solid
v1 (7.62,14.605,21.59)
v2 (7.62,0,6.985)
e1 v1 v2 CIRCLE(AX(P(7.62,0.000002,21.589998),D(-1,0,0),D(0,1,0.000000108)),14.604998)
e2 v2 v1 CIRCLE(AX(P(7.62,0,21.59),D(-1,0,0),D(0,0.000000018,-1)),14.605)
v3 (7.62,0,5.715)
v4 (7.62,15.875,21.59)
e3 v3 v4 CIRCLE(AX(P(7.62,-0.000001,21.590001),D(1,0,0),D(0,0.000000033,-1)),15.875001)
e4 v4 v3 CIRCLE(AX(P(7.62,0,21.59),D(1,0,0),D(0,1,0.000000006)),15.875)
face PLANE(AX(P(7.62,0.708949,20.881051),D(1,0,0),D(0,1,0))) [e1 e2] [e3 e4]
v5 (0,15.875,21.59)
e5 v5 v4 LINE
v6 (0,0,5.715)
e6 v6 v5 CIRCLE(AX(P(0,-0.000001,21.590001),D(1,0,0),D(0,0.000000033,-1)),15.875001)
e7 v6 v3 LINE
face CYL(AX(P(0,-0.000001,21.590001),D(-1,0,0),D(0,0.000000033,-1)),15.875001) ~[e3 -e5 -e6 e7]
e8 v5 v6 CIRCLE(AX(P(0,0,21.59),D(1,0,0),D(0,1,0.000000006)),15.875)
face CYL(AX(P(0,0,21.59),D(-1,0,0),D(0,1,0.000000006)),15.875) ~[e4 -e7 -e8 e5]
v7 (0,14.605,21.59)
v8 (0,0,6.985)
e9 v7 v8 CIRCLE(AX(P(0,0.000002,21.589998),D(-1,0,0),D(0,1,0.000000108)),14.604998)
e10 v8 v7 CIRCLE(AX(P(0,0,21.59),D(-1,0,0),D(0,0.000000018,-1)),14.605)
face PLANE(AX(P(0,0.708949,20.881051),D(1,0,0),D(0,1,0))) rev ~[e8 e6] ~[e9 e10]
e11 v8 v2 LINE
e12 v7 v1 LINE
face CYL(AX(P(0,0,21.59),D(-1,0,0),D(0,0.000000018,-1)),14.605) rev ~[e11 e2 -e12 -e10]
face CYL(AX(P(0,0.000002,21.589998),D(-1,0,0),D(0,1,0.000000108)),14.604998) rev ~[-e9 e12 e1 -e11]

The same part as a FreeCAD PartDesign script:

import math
import FreeCAD as App
import Part
import Sketcher

V = App.Vector
Q = App.Units.Quantity

doc = App.newDocument("Part")
body = doc.addObject("PartDesign::Body", "Body")

# Sketch on YZ plane
sketch1 = body.newObject("Sketcher::SketchObject", "Sketch")
sketch1.AttachmentSupport = (doc.getObject("YZ_Plane"), [""])
sketch1.MapMode = "FlatFace"
sketch1.addGeometry([
    Part.ArcOfCircle(Part.Circle(V(0, 21.59, 0), V(0, 0, 1), 15.875), math.radians(0), math.radians(270)),
    Part.ArcOfCircle(Part.Circle(V(-0.000001, 21.590001, 0), V(0, 0, 1), 15.875001), math.radians(-89.999998), math.radians(-0.000002)),
    Part.ArcOfCircle(Part.Circle(V(0, 21.59, 0), V(0, 0, 1), 14.605), math.radians(-0.000001), math.radians(270.000001)),
    Part.ArcOfCircle(Part.Circle(V(0.000002, 21.589998, 0), V(0, 0, 1), 14.604998), math.radians(-90.000006), math.radians(0.000006)),
], False)
sketch1.addConstraint([
    Sketcher.Constraint("Tangent", 0, 1, 1, 2),
    Sketcher.Constraint("Coincident", 1, 1, 0, 2),
    Sketcher.Constraint("Tangent", 2, 1, 3, 2),
    Sketcher.Constraint("Coincident", 3, 1, 2, 2),
    Sketcher.Constraint("Coincident", 2, 3, 0, 3),
    Sketcher.Constraint("PointOnObject", 0, 3, -2),
    Sketcher.Constraint("PointOnObject", 1, 1, -2),
    Sketcher.Constraint("PointOnObject", 3, 1, -2),
    Sketcher.Constraint("Horizontal", 3, 3, 0, 1),
    Sketcher.Constraint("Horizontal", 0, 1, 2, 1),
    Sketcher.Constraint("Radius", 0, Q("0.625 in")),
    Sketcher.Constraint("Radius", 2, Q("0.575 in")),
    Sketcher.Constraint("DistanceY", -1, 1, 0, 3, Q("0.85 in")),
])
pad1 = body.newObject("PartDesign::Pad", "Pad")
pad1.Profile = sketch1
pad1.Length = Q("0.3 in")

doc.recompute()
